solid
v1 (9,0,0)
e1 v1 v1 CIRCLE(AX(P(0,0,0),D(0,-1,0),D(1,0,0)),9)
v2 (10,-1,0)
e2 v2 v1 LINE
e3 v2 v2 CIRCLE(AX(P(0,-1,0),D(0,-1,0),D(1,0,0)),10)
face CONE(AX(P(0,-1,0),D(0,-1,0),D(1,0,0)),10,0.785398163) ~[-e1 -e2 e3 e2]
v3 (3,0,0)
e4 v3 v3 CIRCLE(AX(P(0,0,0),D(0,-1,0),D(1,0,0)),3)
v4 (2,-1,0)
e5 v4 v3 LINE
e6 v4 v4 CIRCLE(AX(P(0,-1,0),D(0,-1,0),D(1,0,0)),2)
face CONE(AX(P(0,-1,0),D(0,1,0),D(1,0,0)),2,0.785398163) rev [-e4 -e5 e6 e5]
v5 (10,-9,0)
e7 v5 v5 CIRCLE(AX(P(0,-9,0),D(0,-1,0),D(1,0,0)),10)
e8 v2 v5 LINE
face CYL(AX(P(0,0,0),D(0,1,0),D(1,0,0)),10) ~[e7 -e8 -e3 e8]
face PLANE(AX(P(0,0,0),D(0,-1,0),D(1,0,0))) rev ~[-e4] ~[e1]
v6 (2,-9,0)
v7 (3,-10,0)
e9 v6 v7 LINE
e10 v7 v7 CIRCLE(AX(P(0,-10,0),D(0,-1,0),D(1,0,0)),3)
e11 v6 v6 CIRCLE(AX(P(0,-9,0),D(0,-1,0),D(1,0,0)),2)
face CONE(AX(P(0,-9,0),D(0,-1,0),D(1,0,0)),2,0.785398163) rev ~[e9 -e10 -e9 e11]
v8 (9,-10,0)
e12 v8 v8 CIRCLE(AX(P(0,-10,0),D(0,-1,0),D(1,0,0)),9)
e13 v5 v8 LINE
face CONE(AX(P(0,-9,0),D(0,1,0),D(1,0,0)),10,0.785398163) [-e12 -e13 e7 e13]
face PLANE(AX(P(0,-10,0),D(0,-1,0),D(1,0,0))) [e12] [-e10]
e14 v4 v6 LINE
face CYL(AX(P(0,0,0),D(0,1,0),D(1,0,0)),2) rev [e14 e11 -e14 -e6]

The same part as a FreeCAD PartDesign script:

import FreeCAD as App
import Part
import Sketcher
from FreeCAD import Vector
Q = App.Units.Quantity


def edges_at(feature, points):
    """Names of the edges that pass closest to the given points."""
    edges = feature.Shape.Edges
    near = lambda p: min(range(len(edges)), key=lambda i: edges[i].distToShape(Part.Vertex(*p))[0])
    return sorted({f"Edge{near(p) + 1}" for p in points})

doc = App.newDocument("Part")
body = doc.addObject("PartDesign::Body", "Body")

# Sketch on XZ plane
sketch1 = body.newObject("Sketcher::SketchObject", "Sketch")
sketch1.AttachmentSupport = (doc.getObject("XZ_Plane"), [""])
sketch1.MapMode = "FlatFace"
sketch1.addGeometry(Part.Circle(Vector(0, 0, 0), Vector(0, 0, 1), 10), False)
sketch1.addGeometry(Part.Circle(Vector(0, 0, 0), Vector(0, 0, 1), 2), False)
sketch1.addConstraint(Sketcher.Constraint("Coincident", 0, 3, -1, 1))
sketch1.addConstraint(Sketcher.Constraint("Coincident", 1, 3, -1, 1))
sketch1.addConstraint(Sketcher.Constraint("Diameter", 0, Q("20 mm")))
sketch1.addConstraint(Sketcher.Constraint("Diameter", 1, Q("4 mm")))
pad1 = body.newObject("PartDesign::Pad", "Pad")
pad1.Profile = sketch1
pad1.Length = 10
doc.recompute()

chamfer = body.newObject("PartDesign::Chamfer", "Chamfer")
chamfer.Base = (pad1, edges_at(pad1, [
    (-2, -10, 0),
    (-2, 0, 0),
    (-10, -10, 0),
    (-10, 0, 0),
]))
chamfer.Size = 1

doc.recompute()
